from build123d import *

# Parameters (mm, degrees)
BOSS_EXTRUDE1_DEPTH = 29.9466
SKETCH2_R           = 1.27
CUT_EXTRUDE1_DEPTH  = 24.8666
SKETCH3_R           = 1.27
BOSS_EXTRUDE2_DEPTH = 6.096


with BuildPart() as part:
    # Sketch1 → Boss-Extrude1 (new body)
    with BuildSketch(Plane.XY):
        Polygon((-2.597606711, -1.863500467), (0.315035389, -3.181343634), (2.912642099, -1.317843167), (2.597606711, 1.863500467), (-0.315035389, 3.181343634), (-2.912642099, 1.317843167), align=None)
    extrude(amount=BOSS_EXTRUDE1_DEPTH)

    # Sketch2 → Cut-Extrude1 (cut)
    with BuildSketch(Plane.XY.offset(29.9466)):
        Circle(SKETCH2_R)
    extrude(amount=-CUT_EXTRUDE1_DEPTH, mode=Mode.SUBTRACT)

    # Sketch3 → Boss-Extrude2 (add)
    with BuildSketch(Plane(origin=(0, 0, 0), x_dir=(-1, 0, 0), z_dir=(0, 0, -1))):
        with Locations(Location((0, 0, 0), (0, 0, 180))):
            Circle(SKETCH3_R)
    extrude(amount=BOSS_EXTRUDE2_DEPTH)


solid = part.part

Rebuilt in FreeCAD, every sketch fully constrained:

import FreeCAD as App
import Part
import Sketcher
Q = App.Units.Quantity


def add_polygon(sketch, points):
    """Adds a closed chain of lines whose ends are joined by coincident constraints."""
    first, n = sketch.GeometryCount, len(points)
    for a, b in zip(points, points[1:] + points[:1]):
        sketch.addGeometry(Part.LineSegment(App.Vector(*a, 0), App.Vector(*b, 0)), False)
    for i in range(n):
        sketch.addConstraint(Sketcher.Constraint("Coincident", first + i, 2, first + (i + 1) % n, 1))

doc = App.newDocument("Part")
body = doc.addObject("PartDesign::Body", "Body")

sketch1 = body.newObject("Sketcher::SketchObject", "Sketch")
sketch1.AttachmentSupport = (doc.getObject("XY_Plane"), [""])
sketch1.MapMode = "FlatFace"
add_polygon(sketch1, [(-2.6, -1.9), (0.3, -3.2), (2.9, -1.3), (2.6, 1.9), (-0.3, 3.2), (-2.9, 1.3)])
sketch1.addConstraint(Sketcher.Constraint("Symmetric", 0, 2, 3, 2, -1, 1))
sketch1.addConstraint(Sketcher.Constraint("Symmetric", 1, 2, 4, 2, -1, 1))
sketch1.addConstraint(Sketcher.Constraint("Symmetric", 2, 2, 5, 2, -1, 1))
sketch1.addConstraint(Sketcher.Constraint("Equal", 0, 1))
sketch1.addConstraint(Sketcher.Constraint("Equal", 1, 2))
sketch1.addConstraint(Sketcher.Constraint("DistanceY", -1, 1, 2, 2, Q("1.8635 mm")))
sketch1.addConstraint(Sketcher.Constraint("DistanceY", 0, 2, 1, 2, Q("1.8635 mm")))
sketch1.addConstraint(Sketcher.Constraint("DistanceX", 0, 2, 2, 2, Q("2.282571 mm")))
sketch1.addConstraint(Sketcher.Constraint("DistanceX", 3, 2, 0, 2, Q("0.630071 mm")))
pad1 = body.newObject("PartDesign::Pad", "Pad")
pad1.Profile = sketch1
pad1.Length = Q("1.179 in")

sketch2 = body.newObject("Sketcher::SketchObject", "Sketch001")
sketch2.AttachmentSupport = (doc.getObject("XY_Plane"), [""])
sketch2.MapMode = "FlatFace"
sketch2.AttachmentOffset = App.Placement(App.Vector(0, 0, 1.179 * 25.4), App.Rotation())
sketch2.addGeometry(Part.Circle(App.Vector(0, 0, 0), App.Vector(0, 0, 1), 1.3), False)
sketch2.addConstraint(Sketcher.Constraint("Coincident", 0, 3, -1, 1))
sketch2.addConstraint(Sketcher.Constraint("Diameter", 0, Q("0.1 in")))
pocket1 = body.newObject("PartDesign::Pocket", "Pocket")
pocket1.Profile = sketch2
pocket1.Length = Q("0.979 in")

sketch3 = body.newObject("Sketcher::SketchObject", "Sketch002")
sketch3.AttachmentSupport = (doc.getObject("XY_Plane"), [""])
sketch3.MapMode = "FlatFace"
sketch3.addGeometry(Part.Circle(App.Vector(0, 0, 0), App.Vector(0, 0, 1), 1.3), False)
sketch3.addConstraint(Sketcher.Constraint("Coincident", 0, 3, -1, 1))
sketch3.addConstraint(Sketcher.Constraint("Diameter", 0, Q("0.1 in")))
pad2 = body.newObject("PartDesign::Pad", "Pad001")
pad2.Profile = sketch3
pad2.Length = Q("0.24 in")
pad2.Reversed = True

doc.recompute()
